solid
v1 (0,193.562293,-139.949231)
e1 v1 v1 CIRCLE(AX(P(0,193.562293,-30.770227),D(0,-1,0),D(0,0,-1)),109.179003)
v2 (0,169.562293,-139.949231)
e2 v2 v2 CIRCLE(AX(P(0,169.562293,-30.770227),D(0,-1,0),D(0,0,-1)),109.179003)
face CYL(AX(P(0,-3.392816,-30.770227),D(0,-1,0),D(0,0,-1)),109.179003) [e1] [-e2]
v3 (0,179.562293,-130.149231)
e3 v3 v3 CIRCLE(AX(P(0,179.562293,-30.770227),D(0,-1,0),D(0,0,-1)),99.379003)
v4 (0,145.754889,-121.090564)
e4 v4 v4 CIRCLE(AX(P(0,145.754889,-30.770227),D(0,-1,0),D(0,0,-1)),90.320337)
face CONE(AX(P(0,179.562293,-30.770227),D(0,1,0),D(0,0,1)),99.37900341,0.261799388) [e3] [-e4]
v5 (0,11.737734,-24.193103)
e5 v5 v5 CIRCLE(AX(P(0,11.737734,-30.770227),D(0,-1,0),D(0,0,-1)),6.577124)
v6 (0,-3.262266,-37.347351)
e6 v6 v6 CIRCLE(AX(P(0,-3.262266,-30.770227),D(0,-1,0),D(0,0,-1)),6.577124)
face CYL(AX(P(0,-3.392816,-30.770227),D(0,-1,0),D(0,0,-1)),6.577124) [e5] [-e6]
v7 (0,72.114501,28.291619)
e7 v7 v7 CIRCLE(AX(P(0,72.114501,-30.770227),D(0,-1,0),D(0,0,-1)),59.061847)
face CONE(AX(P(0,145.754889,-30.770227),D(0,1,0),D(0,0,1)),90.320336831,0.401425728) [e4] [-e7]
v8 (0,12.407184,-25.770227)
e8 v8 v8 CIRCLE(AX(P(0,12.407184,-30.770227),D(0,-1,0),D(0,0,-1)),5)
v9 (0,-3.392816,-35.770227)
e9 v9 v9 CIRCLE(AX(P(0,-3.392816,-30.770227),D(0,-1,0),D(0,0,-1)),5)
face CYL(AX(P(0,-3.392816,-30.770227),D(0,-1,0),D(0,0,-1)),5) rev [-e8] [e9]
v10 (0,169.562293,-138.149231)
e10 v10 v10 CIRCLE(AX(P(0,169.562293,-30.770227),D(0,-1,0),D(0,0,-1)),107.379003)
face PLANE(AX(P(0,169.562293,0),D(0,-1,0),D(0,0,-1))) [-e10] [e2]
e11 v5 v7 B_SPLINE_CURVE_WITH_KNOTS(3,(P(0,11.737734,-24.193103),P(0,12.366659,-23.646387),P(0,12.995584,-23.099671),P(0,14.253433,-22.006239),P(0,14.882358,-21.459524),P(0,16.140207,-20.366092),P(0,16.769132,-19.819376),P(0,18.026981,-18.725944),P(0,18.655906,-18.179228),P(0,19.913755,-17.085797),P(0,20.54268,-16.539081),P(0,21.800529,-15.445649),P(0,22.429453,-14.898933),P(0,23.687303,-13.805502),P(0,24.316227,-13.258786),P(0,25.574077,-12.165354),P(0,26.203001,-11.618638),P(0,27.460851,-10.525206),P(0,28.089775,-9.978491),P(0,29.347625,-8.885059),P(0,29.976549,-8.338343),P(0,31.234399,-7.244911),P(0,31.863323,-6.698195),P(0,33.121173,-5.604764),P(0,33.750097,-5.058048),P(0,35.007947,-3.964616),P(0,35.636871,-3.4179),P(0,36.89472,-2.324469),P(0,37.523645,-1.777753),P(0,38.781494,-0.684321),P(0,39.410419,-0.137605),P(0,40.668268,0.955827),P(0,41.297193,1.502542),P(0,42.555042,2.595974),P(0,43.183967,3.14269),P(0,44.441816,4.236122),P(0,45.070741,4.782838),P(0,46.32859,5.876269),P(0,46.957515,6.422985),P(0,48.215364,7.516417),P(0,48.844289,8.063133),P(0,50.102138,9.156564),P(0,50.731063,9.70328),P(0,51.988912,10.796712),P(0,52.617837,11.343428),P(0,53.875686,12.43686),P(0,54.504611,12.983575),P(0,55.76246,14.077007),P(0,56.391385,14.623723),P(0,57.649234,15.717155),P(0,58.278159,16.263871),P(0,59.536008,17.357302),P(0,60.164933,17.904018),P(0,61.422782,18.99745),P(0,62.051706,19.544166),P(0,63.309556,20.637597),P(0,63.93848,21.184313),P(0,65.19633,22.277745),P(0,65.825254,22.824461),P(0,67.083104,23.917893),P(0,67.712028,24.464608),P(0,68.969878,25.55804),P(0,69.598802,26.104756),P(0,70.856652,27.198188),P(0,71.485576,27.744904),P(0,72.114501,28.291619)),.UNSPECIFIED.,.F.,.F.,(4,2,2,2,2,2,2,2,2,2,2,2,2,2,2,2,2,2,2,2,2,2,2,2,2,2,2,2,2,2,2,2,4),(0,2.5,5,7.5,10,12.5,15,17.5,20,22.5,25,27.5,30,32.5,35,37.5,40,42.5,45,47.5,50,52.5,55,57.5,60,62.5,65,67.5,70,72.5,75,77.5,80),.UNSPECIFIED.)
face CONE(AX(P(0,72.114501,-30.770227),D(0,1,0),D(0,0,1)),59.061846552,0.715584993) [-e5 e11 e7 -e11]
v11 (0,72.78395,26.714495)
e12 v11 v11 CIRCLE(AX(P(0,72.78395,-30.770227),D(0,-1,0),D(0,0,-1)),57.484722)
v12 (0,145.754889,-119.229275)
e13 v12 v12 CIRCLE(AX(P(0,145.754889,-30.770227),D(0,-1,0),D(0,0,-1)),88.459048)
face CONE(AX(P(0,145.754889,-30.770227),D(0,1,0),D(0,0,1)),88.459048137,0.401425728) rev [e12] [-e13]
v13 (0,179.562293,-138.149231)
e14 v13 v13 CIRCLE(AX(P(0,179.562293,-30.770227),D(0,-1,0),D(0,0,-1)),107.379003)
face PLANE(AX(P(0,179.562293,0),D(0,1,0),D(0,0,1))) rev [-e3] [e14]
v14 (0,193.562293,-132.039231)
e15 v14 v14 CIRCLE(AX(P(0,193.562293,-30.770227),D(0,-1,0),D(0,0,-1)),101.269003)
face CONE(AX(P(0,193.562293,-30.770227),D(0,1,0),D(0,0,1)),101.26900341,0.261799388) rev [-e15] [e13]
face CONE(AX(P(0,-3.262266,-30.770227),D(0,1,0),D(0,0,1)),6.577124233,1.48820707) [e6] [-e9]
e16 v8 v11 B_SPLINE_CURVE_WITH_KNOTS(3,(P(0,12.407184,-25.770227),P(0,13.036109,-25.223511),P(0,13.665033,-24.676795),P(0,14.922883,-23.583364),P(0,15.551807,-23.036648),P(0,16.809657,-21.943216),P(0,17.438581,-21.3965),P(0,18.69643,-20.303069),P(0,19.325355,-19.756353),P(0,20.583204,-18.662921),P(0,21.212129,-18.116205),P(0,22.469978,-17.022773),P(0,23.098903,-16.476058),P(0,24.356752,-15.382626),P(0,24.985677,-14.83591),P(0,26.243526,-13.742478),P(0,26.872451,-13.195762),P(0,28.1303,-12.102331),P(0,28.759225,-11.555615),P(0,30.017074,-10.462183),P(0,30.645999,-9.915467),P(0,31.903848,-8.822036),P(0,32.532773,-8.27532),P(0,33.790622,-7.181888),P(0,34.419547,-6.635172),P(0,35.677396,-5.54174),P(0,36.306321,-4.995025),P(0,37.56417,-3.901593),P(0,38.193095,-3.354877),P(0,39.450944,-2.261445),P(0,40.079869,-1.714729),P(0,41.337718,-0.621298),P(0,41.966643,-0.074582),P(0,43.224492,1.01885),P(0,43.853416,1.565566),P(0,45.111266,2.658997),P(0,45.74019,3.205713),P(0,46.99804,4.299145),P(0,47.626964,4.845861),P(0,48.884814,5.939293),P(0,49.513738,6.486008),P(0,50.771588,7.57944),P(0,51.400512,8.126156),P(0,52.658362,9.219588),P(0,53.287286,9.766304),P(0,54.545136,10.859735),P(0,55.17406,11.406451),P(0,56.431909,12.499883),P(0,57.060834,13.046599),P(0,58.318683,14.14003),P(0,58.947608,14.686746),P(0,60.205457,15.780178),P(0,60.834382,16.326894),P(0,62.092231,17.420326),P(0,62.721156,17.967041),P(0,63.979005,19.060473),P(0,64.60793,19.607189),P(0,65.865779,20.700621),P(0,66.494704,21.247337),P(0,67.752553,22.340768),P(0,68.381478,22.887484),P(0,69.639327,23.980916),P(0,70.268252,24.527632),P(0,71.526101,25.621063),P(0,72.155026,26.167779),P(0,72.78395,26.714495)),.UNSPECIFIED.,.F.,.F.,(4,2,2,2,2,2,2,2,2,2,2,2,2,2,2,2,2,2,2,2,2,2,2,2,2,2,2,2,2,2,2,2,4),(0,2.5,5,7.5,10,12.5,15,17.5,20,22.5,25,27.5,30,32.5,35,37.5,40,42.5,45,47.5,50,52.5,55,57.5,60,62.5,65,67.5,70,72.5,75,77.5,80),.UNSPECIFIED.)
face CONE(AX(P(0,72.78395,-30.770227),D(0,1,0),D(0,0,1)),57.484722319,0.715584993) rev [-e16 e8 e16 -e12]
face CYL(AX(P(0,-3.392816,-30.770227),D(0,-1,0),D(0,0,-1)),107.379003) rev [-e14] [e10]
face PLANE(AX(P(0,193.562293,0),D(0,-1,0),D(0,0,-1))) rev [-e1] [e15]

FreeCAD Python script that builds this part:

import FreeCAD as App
import Part
import Sketcher
from FreeCAD import Vector
Q = App.Units.Quantity


def add_polygon(sketch, points):
    """Adds a closed chain of lines whose ends are joined by coincident constraints."""
    first, n = sketch.GeometryCount, len(points)
    for a, b in zip(points, points[1:] + points[:1]):
        sketch.addGeometry(Part.LineSegment(App.Vector(*a, 0), App.Vector(*b, 0)), False)
    for i in range(n):
        sketch.addConstraint(Sketcher.Constraint("Coincident", first + i, 2, first + (i + 1) % n, 1))

doc = App.newDocument("Part")
params = doc.addObject("Spreadsheet::Sheet", "Params")
for row, (alias, value) in enumerate([
    ("sketch1_width", "15 mm"),
    ("sketch1_width2", "24 mm"),
    ("sketch1_width3", "10 mm"),
    ("sketch1_height", "8 mm"),
    ("sketch1_length", "80 mm"),
    ("revolution_angle", "360 deg"),
], start=1):
    params.set(f"A{row}", alias)
    params.set(f"B{row}", "=" + value)
    params.setAlias(f"B{row}", alias)

body = doc.addObject("PartDesign::Body", "Body")

sketch1 = doc.addObject("Sketcher::SketchObject", "Sketch")
body.addObject(sketch1)
sketch1.AttachmentSupport = (doc.YZ_Plane, [""])
sketch1.MapMode = "FlatFace"
add_polygon(sketch1, [(11.7, -24.2), (-3.3, -24.2), (-3.4, -25.8), (12.4, -25.8), (72.8, 26.7), (145.8, 57.7), (180, 66.9), (193.6, 70.5), (193.6, 78.4), (169.6, 78.4), (169.6, 76.6), (179.6, 76.6), (179.6, 68.6), (145.8, 59.6), (72.1, 28.3)])
sketch1.addGeometry(Part.LineSegment(Vector(-3.4, -30.8, 0), Vector(193.6, -30.8, 0)), True)
sketch1.addConstraint([
    Sketcher.Constraint("Horizontal", 0),
    Sketcher.Constraint("Horizontal", 2),
    Sketcher.Constraint("Vertical", 7),
    Sketcher.Constraint("Horizontal", 8),
    Sketcher.Constraint("Vertical", 9),
    Sketcher.Constraint("Horizontal", 10),
    Sketcher.Constraint("Vertical", 11),
    Sketcher.Constraint("Horizontal", 15),
    Sketcher.Constraint("Parallel", 5, 6),
    Sketcher.Constraint("Parallel", 6, 12),
    Sketcher.Constraint("Parallel", 4, 13),
    Sketcher.Constraint("Parallel", 3, 14),
    Sketcher.Constraint("Vertical", 4, 2, 12, 2),
    Sketcher.Constraint("Vertical", 1, 2, 15, 1),
    Sketcher.Constraint("Vertical", 7, 2, 15, 2),
    Sketcher.Constraint("Equal", 3, 13),
    Sketcher.Constraint("Equal", 13, 14),
    Sketcher.Constraint("DistanceX", 0, 2, 0, 1, Q("15 mm")),
    Sketcher.Constraint("DistanceX", 8, 2, 8, 1, Q("24 mm")),
    Sketcher.Constraint("DistanceX", 10, 1, 10, 2, Q("10 mm")),
    Sketcher.Constraint("DistanceY", 11, 2, 11, 1, Q("8 mm")),
    Sketcher.Constraint("Angle", 3, Q("41 deg")),
    Sketcher.Constraint("Angle", 4, Q("23 deg")),
    Sketcher.Constraint("Angle", 5, Q("15 deg")),
    Sketcher.Constraint("Distance", 3, Q("80 mm")),
    Sketcher.Constraint("Distance", 12, Q("35 mm")),
    Sketcher.Constraint("DistanceX", 2, 1, 2, 2, Q("15.8 mm")),
    Sketcher.Constraint("DistanceY", 9, 2, 9, 1, Q("1.8 mm")),
    Sketcher.Constraint("DistanceY", 15, 1, 1, 2, Q("5 mm")),
    Sketcher.Constraint("DistanceY", 7, 1, 7, 2, Q("7.91 mm")),
    Sketcher.Constraint("DistanceX", 15, 1, 15, 2, Q("196.955109 mm")),
    Sketcher.Constraint("DistanceX", -1, 1, 13, 2, Q("72.114501 mm")),
    Sketcher.Constraint("Distance", 6, Q("14.01213 mm")),
    Sketcher.Constraint("DistanceY", -1, 1, 4, 2, Q("57.688821 mm")),
])
sketch1.setExpression("Constraints[32]", "Params.sketch1_width")
sketch1.setExpression("Constraints[33]", "Params.sketch1_width2")
sketch1.setExpression("Constraints[34]", "Params.sketch1_width3")
sketch1.setExpression("Constraints[35]", "Params.sketch1_height")
sketch1.setExpression("Constraints[39]", "Params.sketch1_length")
revolution = doc.addObject("PartDesign::Revolution", "Revolution")
body.addObject(revolution)
revolution.Profile = sketch1
revolution.ReferenceAxis = (sketch1, ["Axis0"])
revolution.setExpression("Angle", "Params.revolution_angle")

doc.recompute()
